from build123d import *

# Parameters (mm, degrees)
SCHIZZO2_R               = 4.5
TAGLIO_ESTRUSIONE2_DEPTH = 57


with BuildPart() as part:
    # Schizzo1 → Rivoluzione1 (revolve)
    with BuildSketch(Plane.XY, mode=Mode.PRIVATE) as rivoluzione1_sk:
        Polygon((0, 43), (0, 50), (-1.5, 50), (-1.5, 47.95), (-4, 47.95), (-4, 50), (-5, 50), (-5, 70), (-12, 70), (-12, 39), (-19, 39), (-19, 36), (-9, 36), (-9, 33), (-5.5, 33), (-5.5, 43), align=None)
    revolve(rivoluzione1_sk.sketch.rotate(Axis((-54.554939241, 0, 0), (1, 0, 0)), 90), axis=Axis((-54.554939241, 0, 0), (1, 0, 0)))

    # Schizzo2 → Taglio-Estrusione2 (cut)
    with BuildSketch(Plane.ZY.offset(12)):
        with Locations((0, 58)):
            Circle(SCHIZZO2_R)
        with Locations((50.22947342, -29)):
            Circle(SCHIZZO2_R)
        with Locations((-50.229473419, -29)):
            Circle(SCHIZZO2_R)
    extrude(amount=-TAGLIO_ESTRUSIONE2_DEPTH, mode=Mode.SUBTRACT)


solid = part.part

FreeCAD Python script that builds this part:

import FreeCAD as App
import Part
import Sketcher
Q = App.Units.Quantity


def add_polygon(sketch, points):
    """Adds a closed chain of lines whose ends are joined by coincident constraints."""
    first, n = sketch.GeometryCount, len(points)
    for a, b in zip(points, points[1:] + points[:1]):
        sketch.addGeometry(Part.LineSegment(App.Vector(*a, 0), App.Vector(*b, 0)), False)
    for i in range(n):
        sketch.addConstraint(Sketcher.Constraint("Coincident", first + i, 2, first + (i + 1) % n, 1))

doc = App.newDocument("Part")
body = doc.addObject("PartDesign::Body", "Body")

sketch1 = body.newObject("Sketcher::SketchObject", "Sketch")
sketch1.AttachmentSupport = (doc.getObject("XY_Plane"), [""])
sketch1.MapMode = "FlatFace"
add_polygon(sketch1, [(0, 43), (0, 50), (-1.5, 50), (-1.5, 47.95), (-4, 47.95), (-4, 50), (-5, 50), (-5, 70), (-12, 70), (-12, 39), (-19, 39), (-19, 36), (-9, 36), (-9, 33), (-5.5, 33), (-5.5, 43)])
sketch1.addConstraint([
    Sketcher.Constraint("Vertical", 0),
    Sketcher.Constraint("Horizontal", 1),
    Sketcher.Constraint("Vertical", 2),
    Sketcher.Constraint("Horizontal", 3),
    Sketcher.Constraint("Vertical", 4),
    Sketcher.Constraint("Horizontal", 5),
    Sketcher.Constraint("Vertical", 6),
    Sketcher.Constraint("Horizontal", 7),
    Sketcher.Constraint("Vertical", 8),
    Sketcher.Constraint("Horizontal", 9),
    Sketcher.Constraint("Vertical", 10),
    Sketcher.Constraint("Horizontal", 11),
    Sketcher.Constraint("Vertical", 12),
    Sketcher.Constraint("Horizontal", 13),
    Sketcher.Constraint("Vertical", 14),
    Sketcher.Constraint("Horizontal", 15),
    Sketcher.Constraint("PointOnObject", 0, 2, -2),
    Sketcher.Constraint("Horizontal", 1, 2, 4, 2),
    Sketcher.Constraint("Equal", 7, 9),
    Sketcher.Constraint("Equal", 9, 0),
    Sketcher.Constraint("Equal", 10, 12),
    Sketcher.Constraint("Equal", 11, 14),
    Sketcher.Constraint("DistanceX", 5, 2, 5, 1, Q("1 mm")),
    Sketcher.Constraint("DistanceX", 7, 2, 7, 1, Q("7 mm")),
    Sketcher.Constraint("DistanceX", 11, 1, 11, 2, Q("10 mm")),
    Sketcher.Constraint("DistanceY", 6, 1, 6, 2, Q("20 mm")),
    Sketcher.Constraint("DistanceY", 8, 2, 8, 1, Q("31 mm")),
    Sketcher.Constraint("DistanceX", 1, 2, 1, 1, Q("1.5 mm")),
    Sketcher.Constraint("DistanceX", 3, 2, 3, 1, Q("2.5 mm")),
    Sketcher.Constraint("DistanceX", 13, 1, 13, 2, Q("3.5 mm")),
    Sketcher.Constraint("DistanceY", -1, 1, 0, 2, Q("50 mm")),
    Sketcher.Constraint("DistanceY", 2, 2, 2, 1, Q("2.05 mm")),
])
revolution = body.newObject("PartDesign::Revolution", "Revolution")
revolution.Profile = sketch1
revolution.ReferenceAxis = (sketch1, ["H_Axis"])
revolution.Angle = 360

sketch2 = body.newObject("Sketcher::SketchObject", "Sketch001")
sketch2.AttachmentSupport = (doc.getObject("YZ_Plane"), [""])
sketch2.MapMode = "FlatFace"
sketch2.AttachmentOffset = App.Placement(App.Vector(0, 0, -12), App.Rotation())
sketch2.addGeometry([
    Part.Circle(App.Vector(58, 0, 0), App.Vector(0, 0, 1), 4.5),
    Part.Circle(App.Vector(-29, 50.229473, 0), App.Vector(0, 0, 1), 4.5),
    Part.Circle(App.Vector(-29, -50.229473, 0), App.Vector(0, 0, 1), 4.5),
], False)
sketch2.addConstraint([
    Sketcher.Constraint("Equal", 0, 1),
    Sketcher.Constraint("Equal", 1, 2),
    Sketcher.Constraint("Symmetric", 1, 3, 2, 3, -1),
    Sketcher.Constraint("PointOnObject", 0, 3, -1),
    Sketcher.Constraint("Diameter", 0, Q("9 mm")),
    Sketcher.Constraint("DistanceX", -1, 1, 0, 3, Q("58 mm")),
    Sketcher.Constraint("DistanceX", 1, 3, -1, 1, Q("29 mm")),
    Sketcher.Constraint("DistanceY", -1, 1, 1, 3, Q("50.229473 mm")),
])
pocket1 = body.newObject("PartDesign::Pocket", "Pocket")
pocket1.Profile = sketch2
pocket1.Length = 57
pocket1.Reversed = True

doc.recompute()
